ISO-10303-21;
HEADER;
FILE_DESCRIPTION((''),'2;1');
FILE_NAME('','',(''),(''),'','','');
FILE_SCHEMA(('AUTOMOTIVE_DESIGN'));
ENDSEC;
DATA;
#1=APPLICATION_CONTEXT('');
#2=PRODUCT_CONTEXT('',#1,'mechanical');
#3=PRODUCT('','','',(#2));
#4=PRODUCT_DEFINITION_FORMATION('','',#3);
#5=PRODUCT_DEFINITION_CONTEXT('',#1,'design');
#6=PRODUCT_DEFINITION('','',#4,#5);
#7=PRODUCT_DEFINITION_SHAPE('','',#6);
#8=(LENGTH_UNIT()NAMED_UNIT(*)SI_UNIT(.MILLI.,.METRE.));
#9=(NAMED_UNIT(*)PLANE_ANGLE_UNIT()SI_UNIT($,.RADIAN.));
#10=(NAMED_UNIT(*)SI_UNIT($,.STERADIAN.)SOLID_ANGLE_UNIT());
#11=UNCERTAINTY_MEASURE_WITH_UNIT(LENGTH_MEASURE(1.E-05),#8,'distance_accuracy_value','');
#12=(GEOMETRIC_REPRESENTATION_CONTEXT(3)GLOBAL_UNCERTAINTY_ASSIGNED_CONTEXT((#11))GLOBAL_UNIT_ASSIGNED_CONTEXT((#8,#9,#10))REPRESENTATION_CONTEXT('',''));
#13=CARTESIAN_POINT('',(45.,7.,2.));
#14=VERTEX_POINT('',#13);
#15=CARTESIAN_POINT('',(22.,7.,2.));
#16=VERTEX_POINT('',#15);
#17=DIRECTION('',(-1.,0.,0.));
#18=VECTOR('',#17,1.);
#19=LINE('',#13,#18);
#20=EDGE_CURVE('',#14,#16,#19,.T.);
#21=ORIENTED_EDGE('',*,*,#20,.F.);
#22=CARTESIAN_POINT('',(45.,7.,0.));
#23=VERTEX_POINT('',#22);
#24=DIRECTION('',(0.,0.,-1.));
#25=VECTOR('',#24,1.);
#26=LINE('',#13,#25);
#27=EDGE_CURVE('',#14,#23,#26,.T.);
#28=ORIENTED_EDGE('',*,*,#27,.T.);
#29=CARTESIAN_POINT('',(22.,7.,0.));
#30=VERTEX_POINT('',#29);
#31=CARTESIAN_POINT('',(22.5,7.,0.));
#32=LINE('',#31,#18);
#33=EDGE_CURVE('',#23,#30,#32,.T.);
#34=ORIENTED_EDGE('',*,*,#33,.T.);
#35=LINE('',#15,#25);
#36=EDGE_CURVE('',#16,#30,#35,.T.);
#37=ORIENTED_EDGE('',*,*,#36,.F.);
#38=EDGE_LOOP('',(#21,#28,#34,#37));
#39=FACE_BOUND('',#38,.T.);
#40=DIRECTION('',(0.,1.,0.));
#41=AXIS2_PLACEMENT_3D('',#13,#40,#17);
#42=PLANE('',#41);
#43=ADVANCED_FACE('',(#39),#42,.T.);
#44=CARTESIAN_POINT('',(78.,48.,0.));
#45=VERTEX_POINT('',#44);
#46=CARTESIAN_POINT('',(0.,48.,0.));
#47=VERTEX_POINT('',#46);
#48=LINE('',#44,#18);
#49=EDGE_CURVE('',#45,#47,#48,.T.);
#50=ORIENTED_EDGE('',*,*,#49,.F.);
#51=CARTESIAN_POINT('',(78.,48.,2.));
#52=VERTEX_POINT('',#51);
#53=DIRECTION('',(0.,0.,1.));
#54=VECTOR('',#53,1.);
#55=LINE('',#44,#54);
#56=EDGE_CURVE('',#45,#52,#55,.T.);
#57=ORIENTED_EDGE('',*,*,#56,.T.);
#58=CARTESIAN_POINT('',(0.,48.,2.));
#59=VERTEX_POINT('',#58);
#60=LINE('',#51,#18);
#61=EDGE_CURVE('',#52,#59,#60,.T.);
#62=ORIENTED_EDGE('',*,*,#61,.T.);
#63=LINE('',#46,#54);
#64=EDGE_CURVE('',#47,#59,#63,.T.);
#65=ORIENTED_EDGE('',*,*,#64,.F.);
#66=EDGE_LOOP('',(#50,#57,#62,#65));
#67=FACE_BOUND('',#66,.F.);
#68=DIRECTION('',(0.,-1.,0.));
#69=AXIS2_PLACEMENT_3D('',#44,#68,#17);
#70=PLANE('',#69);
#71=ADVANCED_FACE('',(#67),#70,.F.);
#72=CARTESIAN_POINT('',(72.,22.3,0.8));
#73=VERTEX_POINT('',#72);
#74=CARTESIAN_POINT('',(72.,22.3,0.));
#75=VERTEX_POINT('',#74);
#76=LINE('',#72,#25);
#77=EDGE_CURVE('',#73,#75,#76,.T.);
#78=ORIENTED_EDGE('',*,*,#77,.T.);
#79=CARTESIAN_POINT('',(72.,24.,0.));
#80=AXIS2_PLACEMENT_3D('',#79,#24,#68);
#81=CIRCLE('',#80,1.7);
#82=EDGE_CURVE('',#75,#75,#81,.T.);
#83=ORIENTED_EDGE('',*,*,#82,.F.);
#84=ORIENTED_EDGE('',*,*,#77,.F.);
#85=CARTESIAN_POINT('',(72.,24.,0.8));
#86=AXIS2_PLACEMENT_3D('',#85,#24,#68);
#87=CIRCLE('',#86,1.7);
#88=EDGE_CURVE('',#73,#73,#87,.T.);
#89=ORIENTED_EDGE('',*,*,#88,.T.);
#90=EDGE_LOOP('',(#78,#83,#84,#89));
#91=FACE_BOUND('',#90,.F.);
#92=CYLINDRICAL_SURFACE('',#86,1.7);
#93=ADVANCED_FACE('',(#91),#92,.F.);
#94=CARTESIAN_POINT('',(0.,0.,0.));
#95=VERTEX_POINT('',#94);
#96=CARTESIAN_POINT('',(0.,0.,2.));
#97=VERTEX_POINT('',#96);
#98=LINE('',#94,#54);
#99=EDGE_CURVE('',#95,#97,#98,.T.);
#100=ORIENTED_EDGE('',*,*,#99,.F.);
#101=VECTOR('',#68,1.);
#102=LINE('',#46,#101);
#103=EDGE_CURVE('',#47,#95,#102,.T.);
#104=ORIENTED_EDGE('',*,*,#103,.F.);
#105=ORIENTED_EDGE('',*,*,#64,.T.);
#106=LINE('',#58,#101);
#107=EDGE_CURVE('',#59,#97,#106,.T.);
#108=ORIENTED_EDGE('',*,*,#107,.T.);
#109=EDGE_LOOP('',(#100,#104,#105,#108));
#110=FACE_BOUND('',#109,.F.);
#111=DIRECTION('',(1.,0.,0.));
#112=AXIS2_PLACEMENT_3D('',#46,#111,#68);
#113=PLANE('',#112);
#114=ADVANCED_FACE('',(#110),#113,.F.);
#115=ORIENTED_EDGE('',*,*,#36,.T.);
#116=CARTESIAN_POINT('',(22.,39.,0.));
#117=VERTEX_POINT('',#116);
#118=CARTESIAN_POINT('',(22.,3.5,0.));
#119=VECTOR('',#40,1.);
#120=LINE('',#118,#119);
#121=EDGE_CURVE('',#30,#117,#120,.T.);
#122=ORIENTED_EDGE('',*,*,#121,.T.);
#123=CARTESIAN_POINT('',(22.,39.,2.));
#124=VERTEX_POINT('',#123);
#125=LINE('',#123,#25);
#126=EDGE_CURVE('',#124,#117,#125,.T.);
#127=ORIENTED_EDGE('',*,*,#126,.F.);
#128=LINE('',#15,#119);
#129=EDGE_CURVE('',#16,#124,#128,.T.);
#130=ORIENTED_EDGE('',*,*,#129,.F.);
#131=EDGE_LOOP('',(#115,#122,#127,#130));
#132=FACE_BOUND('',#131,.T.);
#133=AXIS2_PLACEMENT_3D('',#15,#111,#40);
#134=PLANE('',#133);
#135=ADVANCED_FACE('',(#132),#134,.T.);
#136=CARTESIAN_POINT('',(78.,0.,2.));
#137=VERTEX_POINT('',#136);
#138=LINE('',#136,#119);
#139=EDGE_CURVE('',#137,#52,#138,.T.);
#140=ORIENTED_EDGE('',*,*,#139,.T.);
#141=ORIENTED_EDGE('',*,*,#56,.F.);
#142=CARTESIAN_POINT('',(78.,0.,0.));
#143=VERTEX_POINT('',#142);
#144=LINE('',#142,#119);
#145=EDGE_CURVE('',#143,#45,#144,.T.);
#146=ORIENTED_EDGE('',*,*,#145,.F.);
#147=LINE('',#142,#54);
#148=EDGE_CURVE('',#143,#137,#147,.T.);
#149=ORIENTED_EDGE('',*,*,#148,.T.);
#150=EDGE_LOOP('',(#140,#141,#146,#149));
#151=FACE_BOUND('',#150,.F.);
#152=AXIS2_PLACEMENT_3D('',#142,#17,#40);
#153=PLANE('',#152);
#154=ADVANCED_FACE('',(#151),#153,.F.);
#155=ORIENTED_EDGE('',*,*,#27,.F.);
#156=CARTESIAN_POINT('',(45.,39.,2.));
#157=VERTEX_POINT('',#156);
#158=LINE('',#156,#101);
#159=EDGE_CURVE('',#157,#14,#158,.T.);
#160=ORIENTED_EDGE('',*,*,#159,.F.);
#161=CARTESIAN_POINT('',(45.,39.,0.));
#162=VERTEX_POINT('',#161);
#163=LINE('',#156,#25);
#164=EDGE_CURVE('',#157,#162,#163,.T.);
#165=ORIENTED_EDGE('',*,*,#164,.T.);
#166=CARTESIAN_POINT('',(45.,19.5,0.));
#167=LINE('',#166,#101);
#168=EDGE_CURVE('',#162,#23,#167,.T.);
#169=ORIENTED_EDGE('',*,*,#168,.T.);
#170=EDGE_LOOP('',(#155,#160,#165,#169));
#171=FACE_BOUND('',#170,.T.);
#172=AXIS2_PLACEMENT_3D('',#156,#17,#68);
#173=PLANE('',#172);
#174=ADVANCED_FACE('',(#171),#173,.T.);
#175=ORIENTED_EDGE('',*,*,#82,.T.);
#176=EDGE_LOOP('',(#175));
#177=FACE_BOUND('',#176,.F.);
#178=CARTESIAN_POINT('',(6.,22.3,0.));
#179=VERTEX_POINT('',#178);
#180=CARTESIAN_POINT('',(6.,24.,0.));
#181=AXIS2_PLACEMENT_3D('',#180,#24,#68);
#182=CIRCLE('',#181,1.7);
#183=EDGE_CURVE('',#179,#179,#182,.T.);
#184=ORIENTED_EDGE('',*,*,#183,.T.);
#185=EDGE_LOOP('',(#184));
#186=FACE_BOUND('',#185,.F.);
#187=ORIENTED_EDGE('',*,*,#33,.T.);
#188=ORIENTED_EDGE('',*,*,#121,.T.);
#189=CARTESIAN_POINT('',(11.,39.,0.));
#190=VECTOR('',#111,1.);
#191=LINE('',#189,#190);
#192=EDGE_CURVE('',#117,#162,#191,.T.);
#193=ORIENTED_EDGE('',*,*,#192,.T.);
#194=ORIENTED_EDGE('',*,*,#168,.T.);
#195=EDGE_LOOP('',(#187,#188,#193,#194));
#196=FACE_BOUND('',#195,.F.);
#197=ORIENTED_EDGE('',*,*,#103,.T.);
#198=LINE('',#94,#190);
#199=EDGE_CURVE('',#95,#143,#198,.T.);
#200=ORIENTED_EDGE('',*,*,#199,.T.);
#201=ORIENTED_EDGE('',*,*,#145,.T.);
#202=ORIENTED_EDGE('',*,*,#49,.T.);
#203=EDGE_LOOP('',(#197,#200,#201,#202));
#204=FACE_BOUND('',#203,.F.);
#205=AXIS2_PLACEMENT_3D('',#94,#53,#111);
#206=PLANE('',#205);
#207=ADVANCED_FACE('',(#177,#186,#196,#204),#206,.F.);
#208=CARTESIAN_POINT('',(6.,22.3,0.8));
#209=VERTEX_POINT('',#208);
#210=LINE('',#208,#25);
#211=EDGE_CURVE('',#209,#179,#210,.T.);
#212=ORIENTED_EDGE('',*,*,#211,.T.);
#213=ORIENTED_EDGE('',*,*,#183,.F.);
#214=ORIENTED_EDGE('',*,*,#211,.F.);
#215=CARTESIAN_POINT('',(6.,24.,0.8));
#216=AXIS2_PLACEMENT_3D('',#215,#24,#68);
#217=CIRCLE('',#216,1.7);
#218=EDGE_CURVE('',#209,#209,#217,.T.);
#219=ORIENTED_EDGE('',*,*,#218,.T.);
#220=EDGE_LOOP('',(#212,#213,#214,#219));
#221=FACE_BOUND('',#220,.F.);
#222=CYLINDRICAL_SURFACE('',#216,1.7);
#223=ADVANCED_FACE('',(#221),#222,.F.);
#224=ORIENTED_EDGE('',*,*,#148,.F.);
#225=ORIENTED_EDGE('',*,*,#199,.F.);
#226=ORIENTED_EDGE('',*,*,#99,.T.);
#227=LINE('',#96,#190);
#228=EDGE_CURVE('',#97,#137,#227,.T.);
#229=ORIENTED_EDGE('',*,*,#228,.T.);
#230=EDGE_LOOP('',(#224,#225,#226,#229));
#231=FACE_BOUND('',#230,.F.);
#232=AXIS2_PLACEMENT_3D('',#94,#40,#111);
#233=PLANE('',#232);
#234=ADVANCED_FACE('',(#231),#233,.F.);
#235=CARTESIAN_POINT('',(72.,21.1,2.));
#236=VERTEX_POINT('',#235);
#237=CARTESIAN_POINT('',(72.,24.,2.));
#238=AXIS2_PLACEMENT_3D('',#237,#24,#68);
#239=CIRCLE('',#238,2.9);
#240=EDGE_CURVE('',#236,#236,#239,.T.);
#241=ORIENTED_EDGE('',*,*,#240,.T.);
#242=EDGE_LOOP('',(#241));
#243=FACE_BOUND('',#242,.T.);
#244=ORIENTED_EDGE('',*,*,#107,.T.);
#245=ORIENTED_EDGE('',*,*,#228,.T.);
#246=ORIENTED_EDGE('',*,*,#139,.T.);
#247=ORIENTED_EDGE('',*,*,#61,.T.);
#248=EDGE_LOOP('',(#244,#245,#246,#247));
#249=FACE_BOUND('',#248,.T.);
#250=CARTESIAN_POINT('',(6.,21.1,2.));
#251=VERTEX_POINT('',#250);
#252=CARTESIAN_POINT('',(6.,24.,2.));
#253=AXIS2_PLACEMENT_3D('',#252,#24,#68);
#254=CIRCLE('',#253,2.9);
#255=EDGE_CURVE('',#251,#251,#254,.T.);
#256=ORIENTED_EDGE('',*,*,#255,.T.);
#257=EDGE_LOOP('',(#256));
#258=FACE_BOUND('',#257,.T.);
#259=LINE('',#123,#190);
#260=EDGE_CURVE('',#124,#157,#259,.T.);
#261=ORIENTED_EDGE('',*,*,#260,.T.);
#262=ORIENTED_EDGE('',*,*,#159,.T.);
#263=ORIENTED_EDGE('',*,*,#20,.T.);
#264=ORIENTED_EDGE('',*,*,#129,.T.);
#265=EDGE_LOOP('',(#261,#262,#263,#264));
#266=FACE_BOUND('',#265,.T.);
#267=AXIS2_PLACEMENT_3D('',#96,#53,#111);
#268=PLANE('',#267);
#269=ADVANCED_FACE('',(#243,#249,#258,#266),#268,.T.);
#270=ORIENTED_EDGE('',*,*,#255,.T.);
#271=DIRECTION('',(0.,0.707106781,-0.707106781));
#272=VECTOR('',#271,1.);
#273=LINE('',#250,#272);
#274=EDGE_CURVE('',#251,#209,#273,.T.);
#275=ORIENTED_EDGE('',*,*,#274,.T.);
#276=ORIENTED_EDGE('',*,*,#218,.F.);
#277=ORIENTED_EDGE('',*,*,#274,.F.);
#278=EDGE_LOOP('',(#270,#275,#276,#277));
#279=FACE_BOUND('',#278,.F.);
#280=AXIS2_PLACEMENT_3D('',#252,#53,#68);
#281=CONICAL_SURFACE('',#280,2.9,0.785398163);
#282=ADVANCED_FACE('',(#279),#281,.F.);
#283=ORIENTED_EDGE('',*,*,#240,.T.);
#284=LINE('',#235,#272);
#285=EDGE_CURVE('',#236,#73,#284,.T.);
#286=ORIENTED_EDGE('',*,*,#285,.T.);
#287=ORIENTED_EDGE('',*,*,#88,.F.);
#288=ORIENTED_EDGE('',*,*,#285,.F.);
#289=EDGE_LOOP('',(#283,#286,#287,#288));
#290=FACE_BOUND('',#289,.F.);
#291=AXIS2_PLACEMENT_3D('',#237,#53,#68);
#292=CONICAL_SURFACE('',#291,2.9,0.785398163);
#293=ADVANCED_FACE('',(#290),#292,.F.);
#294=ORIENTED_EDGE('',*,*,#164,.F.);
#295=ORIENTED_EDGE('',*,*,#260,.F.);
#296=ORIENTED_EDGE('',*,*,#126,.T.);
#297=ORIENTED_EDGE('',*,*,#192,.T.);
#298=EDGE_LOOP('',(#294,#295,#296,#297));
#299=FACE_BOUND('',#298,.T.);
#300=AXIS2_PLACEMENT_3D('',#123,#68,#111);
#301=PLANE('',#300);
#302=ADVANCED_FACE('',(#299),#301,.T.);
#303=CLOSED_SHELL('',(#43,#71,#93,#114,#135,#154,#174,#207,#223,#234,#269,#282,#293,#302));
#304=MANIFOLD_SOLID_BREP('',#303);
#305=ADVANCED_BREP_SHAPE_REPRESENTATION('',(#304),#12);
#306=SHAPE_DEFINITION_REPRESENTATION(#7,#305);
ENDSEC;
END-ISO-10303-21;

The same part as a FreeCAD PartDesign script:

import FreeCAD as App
import Part
import Sketcher


def add_polygon(sketch, points):
    """Adds a closed chain of lines whose ends are joined by coincident constraints."""
    first, n = sketch.GeometryCount, len(points)
    for a, b in zip(points, points[1:] + points[:1]):
        sketch.addGeometry(Part.LineSegment(App.Vector(*a, 0), App.Vector(*b, 0)), False)
    for i in range(n):
        sketch.addConstraint(Sketcher.Constraint("Coincident", first + i, 2, first + (i + 1) % n, 1))

doc = App.newDocument("Part")
body = doc.addObject("PartDesign::Body", "Body")

# Sketch on XY plane
sketch1 = body.newObject("Sketcher::SketchObject", "Sketch")
sketch1.AttachmentSupport = (doc.getObject("XY_Plane"), [""])
sketch1.MapMode = "FlatFace"
add_polygon(sketch1, [(0, 48), (0, 0), (78, 0), (78, 48)])  # lines 0-3
sketch1.addConstraint(Sketcher.Constraint("Vertical", 0))
sketch1.addConstraint(Sketcher.Constraint("Horizontal", 1))
sketch1.addConstraint(Sketcher.Constraint("Vertical", 2))
sketch1.addConstraint(Sketcher.Constraint("Horizontal", 3))
sketch1.addConstraint(Sketcher.Constraint("Coincident", 0, 2, -1, 1))
sketch1.addConstraint(Sketcher.Constraint("DistanceX", 1, 1, 1, 2, 78.0))
sketch1.addConstraint(Sketcher.Constraint("DistanceY", 0, 2, 0, 1, 48.0))
pad1 = body.newObject("PartDesign::Pad", "Pad")
pad1.Profile = sketch1
pad1.Length = 2

# Sketch on XY plane
sketch2 = body.newObject("Sketcher::SketchObject", "Sketch001")
sketch2.AttachmentSupport = (doc.getObject("XY_Plane"), [""])
sketch2.MapMode = "FlatFace"
sketch2.AttachmentOffset = App.Placement(App.Vector(0, 0, 2), App.Rotation())
sketch2.addGeometry(Part.Circle(App.Vector(72, 24, 0), App.Vector(0, 0, 1), 1.7), False)
sketch2.addGeometry(Part.Circle(App.Vector(6, 24, 0), App.Vector(0, 0, 1), 1.7), False)
sketch2.addConstraint(Sketcher.Constraint("Equal", 0, 1))
sketch2.addConstraint(Sketcher.Constraint("Horizontal", 0, 3, 1, 3))
sketch2.addConstraint(Sketcher.Constraint("Diameter", 0, 3.4))
sketch2.addConstraint(Sketcher.Constraint("DistanceX", -1, 1, 0, 3, 72.0))
sketch2.addConstraint(Sketcher.Constraint("DistanceY", -1, 1, 0, 3, 24.0))
sketch2.addConstraint(Sketcher.Constraint("DistanceX", -1, 1, 1, 3, 6.0))
doc.recompute()
hole = body.newObject("PartDesign::Hole", "Hole")
hole.Profile = sketch2
hole.ThreadType = "None"
hole.Diameter = 3.4
hole.DepthType = "Dimension"
hole.Depth = 13
hole.DrillPoint = "Angled"
hole.DrillPointAngle = 118
hole.HoleCutType = "Countersink"
hole.HoleCutDiameter = 5.8
hole.HoleCutCountersinkAngle = 90

# Sketch on XY plane
sketch3 = body.newObject("Sketcher::SketchObject", "Sketch002")
sketch3.AttachmentSupport = (doc.getObject("XY_Plane"), [""])
sketch3.MapMode = "FlatFace"
sketch3.AttachmentOffset = App.Placement(App.Vector(0, 0, 2), App.Rotation())
add_polygon(sketch3, [(45, 39), (22, 39), (22, 7), (45, 7)])  # lines 0-3
sketch3.addConstraint(Sketcher.Constraint("Horizontal", 0))
sketch3.addConstraint(Sketcher.Constraint("Vertical", 1))
sketch3.addConstraint(Sketcher.Constraint("Horizontal", 2))
sketch3.addConstraint(Sketcher.Constraint("Vertical", 3))
sketch3.addConstraint(Sketcher.Constraint("DistanceX", 0, 2, 0, 1, 23.0))
sketch3.addConstraint(Sketcher.Constraint("DistanceY", 1, 2, 1, 1, 32.0))
sketch3.addConstraint(Sketcher.Constraint("DistanceX", -1, 1, 0, 2, 22.0))
sketch3.addConstraint(Sketcher.Constraint("DistanceY", -1, 1, 0, 2, 39.0))
pocket1 = body.newObject("PartDesign::Pocket", "Pocket")
pocket1.Profile = sketch3
pocket1.Length = 500

doc.recompute()
